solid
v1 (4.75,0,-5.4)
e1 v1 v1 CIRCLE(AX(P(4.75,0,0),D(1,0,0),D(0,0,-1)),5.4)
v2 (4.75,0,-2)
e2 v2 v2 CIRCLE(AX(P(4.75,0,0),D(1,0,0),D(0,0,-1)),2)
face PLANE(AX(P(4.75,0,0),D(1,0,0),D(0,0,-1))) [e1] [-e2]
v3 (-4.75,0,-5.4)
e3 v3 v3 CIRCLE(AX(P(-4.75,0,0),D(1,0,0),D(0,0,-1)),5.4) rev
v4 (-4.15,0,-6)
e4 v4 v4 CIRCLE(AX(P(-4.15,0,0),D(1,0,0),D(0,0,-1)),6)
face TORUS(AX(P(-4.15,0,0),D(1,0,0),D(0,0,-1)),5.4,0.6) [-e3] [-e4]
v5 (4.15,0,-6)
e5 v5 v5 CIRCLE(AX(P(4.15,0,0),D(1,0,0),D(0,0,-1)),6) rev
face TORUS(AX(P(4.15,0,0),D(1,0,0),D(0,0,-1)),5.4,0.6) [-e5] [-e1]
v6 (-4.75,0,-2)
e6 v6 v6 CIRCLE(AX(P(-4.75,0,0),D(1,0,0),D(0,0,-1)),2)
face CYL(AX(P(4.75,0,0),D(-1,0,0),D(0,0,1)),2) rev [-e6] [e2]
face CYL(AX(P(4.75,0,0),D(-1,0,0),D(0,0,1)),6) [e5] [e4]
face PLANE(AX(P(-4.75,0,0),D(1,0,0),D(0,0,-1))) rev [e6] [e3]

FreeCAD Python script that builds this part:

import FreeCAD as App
import Part
import Sketcher
from FreeCAD import Vector
Q = App.Units.Quantity


def edges_at(feature, points):
    """Names of the edges that pass closest to the given points."""
    edges = feature.Shape.Edges
    near = lambda p: min(range(len(edges)), key=lambda i: edges[i].distToShape(Part.Vertex(*p))[0])
    return sorted({f"Edge{near(p) + 1}" for p in points})

doc = App.newDocument("Part")
body = doc.addObject("PartDesign::Body", "Body")

sketch1 = doc.addObject("Sketcher::SketchObject", "Sketch")
body.addObject(sketch1)
sketch1.AttachmentSupport = (doc.YZ_Plane, [""])
sketch1.MapMode = "FlatFace"
sketch1.addGeometry([
    Part.Circle(Vector(0, 0, 0), Vector(0, 0, 1), 6),
    Part.Circle(Vector(0, 0, 0), Vector(0, 0, 1), 2),
], False)
sketch1.addConstraint([
    Sketcher.Constraint("Coincident", 0, 3, -1, 1),
    Sketcher.Constraint("Coincident", 1, 3, -1, 1),
    Sketcher.Constraint("Diameter", 0, Q("12 mm")),
    Sketcher.Constraint("Diameter", 1, Q("4 mm")),
])
pad1 = doc.addObject("PartDesign::Pad", "Pad")
body.addObject(pad1)
pad1.Profile = sketch1
pad1.Length = 9.5
pad1.Midplane = True
doc.recompute()

fillet = doc.addObject("PartDesign::Fillet", "Fillet")
body.addObject(fillet)
fillet.Base = (pad1, edges_at(pad1, [(-4.75, 0, 6), (4.75, 0, 6)]))
fillet.Radius = 0.6

doc.recompute()
